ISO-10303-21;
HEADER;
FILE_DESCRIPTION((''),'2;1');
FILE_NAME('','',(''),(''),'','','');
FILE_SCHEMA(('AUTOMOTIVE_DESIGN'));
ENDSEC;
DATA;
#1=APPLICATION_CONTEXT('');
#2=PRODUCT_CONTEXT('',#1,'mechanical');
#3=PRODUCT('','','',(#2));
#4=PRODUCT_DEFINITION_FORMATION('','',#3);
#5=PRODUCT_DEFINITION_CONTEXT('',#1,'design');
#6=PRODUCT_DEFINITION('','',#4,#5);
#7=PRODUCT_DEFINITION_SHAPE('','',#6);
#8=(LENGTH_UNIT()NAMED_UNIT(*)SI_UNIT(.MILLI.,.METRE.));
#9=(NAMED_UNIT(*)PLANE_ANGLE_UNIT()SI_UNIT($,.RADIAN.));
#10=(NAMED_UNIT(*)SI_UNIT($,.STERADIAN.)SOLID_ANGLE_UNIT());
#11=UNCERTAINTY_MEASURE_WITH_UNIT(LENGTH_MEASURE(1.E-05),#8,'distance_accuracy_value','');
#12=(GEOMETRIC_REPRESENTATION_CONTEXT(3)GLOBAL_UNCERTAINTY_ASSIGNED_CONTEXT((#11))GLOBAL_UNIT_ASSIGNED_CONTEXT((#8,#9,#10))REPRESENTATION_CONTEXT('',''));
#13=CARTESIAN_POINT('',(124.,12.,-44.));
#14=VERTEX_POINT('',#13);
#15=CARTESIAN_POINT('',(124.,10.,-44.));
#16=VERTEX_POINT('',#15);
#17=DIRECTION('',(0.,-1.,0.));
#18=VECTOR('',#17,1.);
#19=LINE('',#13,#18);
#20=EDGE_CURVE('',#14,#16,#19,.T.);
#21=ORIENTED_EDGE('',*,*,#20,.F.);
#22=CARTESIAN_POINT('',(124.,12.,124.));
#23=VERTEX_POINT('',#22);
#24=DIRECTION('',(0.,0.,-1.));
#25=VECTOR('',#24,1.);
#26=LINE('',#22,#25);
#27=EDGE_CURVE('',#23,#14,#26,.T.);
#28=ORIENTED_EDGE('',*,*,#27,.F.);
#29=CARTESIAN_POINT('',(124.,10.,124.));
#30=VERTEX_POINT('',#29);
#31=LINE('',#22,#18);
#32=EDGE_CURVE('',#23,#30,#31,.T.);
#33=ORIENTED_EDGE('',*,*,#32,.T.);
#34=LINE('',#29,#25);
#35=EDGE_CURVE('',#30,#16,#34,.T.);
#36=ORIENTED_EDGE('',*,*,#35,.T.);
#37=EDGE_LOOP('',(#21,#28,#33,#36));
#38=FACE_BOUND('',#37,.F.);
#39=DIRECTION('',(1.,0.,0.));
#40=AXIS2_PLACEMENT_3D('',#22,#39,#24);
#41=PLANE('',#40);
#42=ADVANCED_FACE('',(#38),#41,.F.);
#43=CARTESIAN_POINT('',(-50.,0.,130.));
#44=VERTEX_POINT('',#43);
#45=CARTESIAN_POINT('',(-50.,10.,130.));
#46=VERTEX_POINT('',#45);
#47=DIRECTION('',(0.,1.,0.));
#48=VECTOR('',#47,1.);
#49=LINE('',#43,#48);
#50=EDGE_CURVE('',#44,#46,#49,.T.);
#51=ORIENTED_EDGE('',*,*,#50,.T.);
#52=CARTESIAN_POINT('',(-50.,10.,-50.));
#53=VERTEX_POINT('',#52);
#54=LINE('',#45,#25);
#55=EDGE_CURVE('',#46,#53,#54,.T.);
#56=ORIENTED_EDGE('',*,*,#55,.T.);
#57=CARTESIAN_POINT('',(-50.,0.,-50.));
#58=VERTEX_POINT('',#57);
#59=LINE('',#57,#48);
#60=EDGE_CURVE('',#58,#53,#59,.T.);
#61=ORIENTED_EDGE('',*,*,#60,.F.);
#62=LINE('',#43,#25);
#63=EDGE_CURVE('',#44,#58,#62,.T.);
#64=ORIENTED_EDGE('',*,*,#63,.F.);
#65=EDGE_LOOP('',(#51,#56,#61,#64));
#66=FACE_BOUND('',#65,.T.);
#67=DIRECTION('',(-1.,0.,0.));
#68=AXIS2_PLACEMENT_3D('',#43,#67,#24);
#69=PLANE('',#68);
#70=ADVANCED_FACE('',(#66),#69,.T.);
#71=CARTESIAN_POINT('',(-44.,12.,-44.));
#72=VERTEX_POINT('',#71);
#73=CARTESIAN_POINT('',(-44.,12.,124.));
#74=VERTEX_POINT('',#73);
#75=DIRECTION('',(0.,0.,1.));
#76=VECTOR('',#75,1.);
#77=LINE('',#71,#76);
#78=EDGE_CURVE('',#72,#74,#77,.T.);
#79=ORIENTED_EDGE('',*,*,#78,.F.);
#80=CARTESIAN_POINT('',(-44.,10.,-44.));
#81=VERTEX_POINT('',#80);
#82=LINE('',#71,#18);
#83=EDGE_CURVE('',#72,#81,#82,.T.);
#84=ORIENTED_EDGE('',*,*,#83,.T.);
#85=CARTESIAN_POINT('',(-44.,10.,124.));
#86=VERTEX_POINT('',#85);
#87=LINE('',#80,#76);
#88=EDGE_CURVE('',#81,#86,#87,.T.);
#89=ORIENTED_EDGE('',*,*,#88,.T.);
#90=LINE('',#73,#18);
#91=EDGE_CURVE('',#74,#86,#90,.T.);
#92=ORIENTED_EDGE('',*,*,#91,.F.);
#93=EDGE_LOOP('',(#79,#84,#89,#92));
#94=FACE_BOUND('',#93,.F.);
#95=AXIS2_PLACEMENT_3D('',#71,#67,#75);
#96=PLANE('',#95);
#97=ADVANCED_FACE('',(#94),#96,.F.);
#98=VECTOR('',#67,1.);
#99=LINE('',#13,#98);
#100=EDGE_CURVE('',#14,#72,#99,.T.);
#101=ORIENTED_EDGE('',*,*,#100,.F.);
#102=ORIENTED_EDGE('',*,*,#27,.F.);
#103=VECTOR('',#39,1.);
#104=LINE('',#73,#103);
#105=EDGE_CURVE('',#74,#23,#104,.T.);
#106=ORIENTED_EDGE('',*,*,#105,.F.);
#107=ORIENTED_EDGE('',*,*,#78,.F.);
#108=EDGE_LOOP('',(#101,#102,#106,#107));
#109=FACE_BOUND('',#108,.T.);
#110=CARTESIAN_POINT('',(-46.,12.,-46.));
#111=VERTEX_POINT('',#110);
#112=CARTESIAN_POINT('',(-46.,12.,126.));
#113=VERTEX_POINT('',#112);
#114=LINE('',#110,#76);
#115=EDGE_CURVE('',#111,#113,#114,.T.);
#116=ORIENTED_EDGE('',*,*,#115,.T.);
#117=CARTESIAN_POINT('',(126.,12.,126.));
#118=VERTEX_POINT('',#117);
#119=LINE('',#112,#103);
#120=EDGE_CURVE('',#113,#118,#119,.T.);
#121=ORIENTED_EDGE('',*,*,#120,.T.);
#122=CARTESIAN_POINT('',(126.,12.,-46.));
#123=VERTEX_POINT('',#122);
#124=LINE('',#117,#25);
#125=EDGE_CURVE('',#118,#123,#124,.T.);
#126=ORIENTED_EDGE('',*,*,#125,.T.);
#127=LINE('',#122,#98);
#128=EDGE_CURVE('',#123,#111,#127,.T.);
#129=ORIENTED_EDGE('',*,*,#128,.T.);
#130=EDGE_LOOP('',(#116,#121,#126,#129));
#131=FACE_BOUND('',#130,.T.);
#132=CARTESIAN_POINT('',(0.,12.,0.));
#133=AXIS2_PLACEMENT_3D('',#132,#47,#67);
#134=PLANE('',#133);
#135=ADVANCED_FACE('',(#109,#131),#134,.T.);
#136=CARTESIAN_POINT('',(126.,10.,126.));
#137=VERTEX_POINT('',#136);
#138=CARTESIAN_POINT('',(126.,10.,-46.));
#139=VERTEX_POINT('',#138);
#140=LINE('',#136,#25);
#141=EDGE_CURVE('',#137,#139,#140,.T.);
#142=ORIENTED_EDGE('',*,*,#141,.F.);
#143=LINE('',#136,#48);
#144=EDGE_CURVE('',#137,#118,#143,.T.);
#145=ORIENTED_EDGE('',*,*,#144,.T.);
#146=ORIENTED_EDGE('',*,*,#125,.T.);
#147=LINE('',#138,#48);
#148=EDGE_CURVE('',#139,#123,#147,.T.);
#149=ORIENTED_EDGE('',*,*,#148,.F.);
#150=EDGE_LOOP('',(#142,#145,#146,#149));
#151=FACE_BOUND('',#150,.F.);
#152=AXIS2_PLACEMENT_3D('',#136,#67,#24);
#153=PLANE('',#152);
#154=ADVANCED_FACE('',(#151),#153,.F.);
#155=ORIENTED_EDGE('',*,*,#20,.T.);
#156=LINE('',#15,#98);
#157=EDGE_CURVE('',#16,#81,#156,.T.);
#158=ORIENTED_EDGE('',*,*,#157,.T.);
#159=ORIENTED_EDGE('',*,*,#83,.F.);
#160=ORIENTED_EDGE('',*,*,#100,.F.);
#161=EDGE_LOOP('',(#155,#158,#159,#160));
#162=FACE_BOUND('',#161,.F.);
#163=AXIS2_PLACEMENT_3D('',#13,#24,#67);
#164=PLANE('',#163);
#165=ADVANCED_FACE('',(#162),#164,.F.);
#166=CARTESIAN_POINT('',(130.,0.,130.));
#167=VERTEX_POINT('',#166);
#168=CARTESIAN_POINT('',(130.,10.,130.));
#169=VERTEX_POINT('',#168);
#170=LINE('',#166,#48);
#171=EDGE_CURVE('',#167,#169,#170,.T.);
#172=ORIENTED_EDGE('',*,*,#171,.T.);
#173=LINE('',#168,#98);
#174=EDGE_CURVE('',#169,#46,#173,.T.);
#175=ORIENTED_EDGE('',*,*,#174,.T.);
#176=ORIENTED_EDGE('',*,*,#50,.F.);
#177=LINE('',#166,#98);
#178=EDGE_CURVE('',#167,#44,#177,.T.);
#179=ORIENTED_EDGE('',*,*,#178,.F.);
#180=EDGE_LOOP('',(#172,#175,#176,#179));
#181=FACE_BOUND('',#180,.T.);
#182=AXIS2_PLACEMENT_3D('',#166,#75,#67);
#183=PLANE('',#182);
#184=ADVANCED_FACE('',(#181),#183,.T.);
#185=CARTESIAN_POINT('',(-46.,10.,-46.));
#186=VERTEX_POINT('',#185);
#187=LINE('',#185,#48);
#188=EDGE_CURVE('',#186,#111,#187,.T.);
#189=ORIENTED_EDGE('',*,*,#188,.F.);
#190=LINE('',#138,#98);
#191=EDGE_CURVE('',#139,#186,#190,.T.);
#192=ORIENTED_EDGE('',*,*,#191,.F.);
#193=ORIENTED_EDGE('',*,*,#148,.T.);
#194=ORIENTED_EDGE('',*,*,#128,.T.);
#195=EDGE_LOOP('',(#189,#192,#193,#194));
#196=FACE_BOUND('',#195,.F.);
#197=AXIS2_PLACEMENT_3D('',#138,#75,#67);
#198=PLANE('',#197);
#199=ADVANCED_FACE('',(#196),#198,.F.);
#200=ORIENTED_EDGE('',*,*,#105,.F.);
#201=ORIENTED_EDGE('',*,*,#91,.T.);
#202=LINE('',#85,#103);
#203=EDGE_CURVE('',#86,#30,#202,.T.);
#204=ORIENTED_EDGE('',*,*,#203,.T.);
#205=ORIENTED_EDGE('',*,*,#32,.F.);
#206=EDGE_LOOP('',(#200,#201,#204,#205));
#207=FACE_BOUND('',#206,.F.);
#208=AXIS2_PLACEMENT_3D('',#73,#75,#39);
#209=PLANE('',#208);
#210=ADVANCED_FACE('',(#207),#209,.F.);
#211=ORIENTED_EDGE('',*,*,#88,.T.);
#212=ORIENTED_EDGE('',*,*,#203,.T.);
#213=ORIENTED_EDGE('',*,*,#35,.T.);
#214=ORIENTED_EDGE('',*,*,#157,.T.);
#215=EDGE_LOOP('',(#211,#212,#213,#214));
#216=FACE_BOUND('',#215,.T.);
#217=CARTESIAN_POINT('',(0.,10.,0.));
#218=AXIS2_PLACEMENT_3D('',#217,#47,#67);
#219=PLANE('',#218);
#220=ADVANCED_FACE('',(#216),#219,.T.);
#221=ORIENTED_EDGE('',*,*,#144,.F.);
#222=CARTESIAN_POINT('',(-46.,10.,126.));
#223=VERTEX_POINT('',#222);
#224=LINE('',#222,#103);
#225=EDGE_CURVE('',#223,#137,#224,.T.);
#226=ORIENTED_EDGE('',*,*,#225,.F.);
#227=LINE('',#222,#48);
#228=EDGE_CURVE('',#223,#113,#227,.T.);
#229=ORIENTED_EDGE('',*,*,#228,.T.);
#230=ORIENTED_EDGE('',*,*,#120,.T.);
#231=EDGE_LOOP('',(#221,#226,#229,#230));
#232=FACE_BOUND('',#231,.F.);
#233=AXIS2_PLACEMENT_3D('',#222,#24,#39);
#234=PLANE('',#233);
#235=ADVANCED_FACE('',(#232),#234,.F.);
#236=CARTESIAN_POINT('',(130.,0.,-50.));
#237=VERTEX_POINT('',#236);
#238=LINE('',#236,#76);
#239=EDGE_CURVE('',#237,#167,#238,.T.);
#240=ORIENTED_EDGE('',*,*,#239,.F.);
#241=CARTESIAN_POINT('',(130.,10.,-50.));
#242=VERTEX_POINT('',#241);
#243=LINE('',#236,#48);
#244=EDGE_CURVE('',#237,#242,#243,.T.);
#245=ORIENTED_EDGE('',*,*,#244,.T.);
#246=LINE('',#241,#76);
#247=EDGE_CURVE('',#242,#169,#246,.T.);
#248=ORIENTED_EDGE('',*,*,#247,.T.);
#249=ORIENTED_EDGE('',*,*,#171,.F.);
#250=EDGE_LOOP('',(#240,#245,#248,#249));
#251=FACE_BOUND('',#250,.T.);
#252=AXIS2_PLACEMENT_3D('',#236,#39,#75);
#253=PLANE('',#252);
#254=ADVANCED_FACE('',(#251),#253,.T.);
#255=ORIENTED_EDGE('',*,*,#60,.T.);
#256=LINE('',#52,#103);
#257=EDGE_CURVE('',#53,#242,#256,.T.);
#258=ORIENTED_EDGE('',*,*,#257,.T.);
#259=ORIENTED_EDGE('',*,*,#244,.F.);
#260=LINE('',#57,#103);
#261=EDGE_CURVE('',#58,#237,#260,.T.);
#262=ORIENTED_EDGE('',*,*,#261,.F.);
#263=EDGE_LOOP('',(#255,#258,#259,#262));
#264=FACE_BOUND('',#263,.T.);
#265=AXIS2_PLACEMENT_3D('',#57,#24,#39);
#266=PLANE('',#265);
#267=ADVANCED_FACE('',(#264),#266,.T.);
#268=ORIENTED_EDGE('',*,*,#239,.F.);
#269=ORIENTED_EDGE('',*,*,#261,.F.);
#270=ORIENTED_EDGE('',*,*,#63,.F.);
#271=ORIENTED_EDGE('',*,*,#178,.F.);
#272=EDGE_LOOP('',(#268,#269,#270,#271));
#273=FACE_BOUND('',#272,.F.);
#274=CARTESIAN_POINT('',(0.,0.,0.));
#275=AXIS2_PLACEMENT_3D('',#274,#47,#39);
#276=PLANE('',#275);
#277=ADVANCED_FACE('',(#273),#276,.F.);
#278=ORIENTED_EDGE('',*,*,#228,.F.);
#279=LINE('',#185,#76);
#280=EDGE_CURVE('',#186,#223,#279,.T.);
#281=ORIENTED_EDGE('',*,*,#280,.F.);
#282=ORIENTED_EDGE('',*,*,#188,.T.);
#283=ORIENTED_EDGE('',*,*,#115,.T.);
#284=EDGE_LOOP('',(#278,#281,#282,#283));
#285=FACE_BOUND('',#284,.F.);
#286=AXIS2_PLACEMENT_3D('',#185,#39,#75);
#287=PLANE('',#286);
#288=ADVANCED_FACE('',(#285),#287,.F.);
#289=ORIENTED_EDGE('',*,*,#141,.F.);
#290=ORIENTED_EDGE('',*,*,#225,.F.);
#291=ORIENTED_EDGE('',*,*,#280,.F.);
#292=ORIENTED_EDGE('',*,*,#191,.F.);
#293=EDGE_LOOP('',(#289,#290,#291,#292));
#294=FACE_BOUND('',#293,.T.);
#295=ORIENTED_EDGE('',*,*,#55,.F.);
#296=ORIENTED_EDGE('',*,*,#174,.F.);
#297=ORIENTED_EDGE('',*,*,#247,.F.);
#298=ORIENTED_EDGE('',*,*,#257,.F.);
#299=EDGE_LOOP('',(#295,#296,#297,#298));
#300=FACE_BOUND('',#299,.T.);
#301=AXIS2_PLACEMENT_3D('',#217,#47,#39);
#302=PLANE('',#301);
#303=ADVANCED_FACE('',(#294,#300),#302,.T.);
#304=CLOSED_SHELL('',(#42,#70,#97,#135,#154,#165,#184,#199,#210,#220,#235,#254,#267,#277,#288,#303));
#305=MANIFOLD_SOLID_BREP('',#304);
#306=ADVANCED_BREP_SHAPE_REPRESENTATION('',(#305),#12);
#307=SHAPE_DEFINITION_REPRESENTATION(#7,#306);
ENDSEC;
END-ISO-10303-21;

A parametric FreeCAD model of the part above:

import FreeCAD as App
import Part
import Sketcher

V = App.Vector
Q = App.Units.Quantity


def add_polygon(sketch, points):
    """Adds a closed chain of lines whose ends are joined by coincident constraints."""
    first, n = sketch.GeometryCount, len(points)
    for a, b in zip(points, points[1:] + points[:1]):
        sketch.addGeometry(Part.LineSegment(App.Vector(*a, 0), App.Vector(*b, 0)), False)
    for i in range(n):
        sketch.addConstraint(Sketcher.Constraint("Coincident", first + i, 2, first + (i + 1) % n, 1))

doc = App.newDocument("Part")
params = doc.addObject("Spreadsheet::Sheet", "Params")
for row, (alias, value) in enumerate([
    ("sketch1_width", "180 mm"),
    ("pad1_length", "10 mm"),
    ("sketch2_width", "172 mm"),
    ("pad2_length", "2 mm"),
    ("sketch3_width", "168 mm"),
    ("pocket1_length", "2 mm"),
], start=1):
    params.set(f"A{row}", alias)
    params.set(f"B{row}", "=" + value)
    params.setAlias(f"B{row}", alias)

body = doc.addObject("PartDesign::Body", "Body")

sketch1 = doc.addObject("Sketcher::SketchObject", "Sketch")
body.addObject(sketch1)
sketch1.AttachmentSupport = (doc.XZ_Plane, [""])
sketch1.MapMode = "FlatFace"
add_polygon(sketch1, [(130, -50), (-50, -50), (-50, 130), (130, 130)])
sketch1.addConstraint([
    Sketcher.Constraint("Horizontal", 0),
    Sketcher.Constraint("Vertical", 1),
    Sketcher.Constraint("Horizontal", 2),
    Sketcher.Constraint("Vertical", 3),
    Sketcher.Constraint("Equal", 2, 1),
    Sketcher.Constraint("DistanceX", 0, 2, 0, 1, Q("180 mm")),
    Sketcher.Constraint("DistanceX", 0, 2, -1, 1, Q("50 mm")),
    Sketcher.Constraint("DistanceY", 0, 2, -1, 1, Q("50 mm")),
])
sketch1.setExpression("Constraints[9]", "Params.sketch1_width")
pad1 = doc.addObject("PartDesign::Pad", "Pad")
body.addObject(pad1)
pad1.Profile = sketch1
pad1.setExpression("Length", "Params.pad1_length")
pad1.Reversed = True

sketch2 = doc.addObject("Sketcher::SketchObject", "Sketch001")
body.addObject(sketch2)
sketch2.AttachmentSupport = (doc.XZ_Plane, [""])
sketch2.MapMode = "FlatFace"
sketch2.AttachmentOffset = App.Placement(V(0, 0, -10), App.Rotation())
add_polygon(sketch2, [(-46, -46), (-46, 126), (126, 126), (126, -46)])
sketch2.addConstraint([
    Sketcher.Constraint("Vertical", 0),
    Sketcher.Constraint("Horizontal", 1),
    Sketcher.Constraint("Vertical", 2),
    Sketcher.Constraint("Horizontal", 3),
    Sketcher.Constraint("Equal", 3, 0),
    Sketcher.Constraint("DistanceX", 1, 1, 1, 2, Q("172 mm")),
    Sketcher.Constraint("DistanceX", 0, 2, -1, 1, Q("46 mm")),
    Sketcher.Constraint("DistanceY", -1, 1, 0, 2, Q("126 mm")),
])
sketch2.setExpression("Constraints[9]", "Params.sketch2_width")
pad2 = doc.addObject("PartDesign::Pad", "Pad001")
body.addObject(pad2)
pad2.Profile = sketch2
pad2.setExpression("Length", "Params.pad2_length")
pad2.Reversed = True

sketch3 = doc.addObject("Sketcher::SketchObject", "Sketch002")
body.addObject(sketch3)
sketch3.AttachmentSupport = (doc.XZ_Plane, [""])
sketch3.MapMode = "FlatFace"
sketch3.AttachmentOffset = App.Placement(V(0, 0, -12), App.Rotation())
add_polygon(sketch3, [(-44, -44), (-44, 124), (124, 124), (124, -44)])
sketch3.addConstraint([
    Sketcher.Constraint("Vertical", 0),
    Sketcher.Constraint("Horizontal", 1),
    Sketcher.Constraint("Vertical", 2),
    Sketcher.Constraint("Horizontal", 3),
    Sketcher.Constraint("Equal", 3, 0),
    Sketcher.Constraint("DistanceX", 1, 1, 1, 2, Q("168 mm")),
    Sketcher.Constraint("DistanceX", 0, 2, -1, 1, Q("44 mm")),
    Sketcher.Constraint("DistanceY", -1, 1, 0, 2, Q("124 mm")),
])
sketch3.setExpression("Constraints[9]", "Params.sketch3_width")
pocket1 = doc.addObject("PartDesign::Pocket", "Pocket")
body.addObject(pocket1)
pocket1.Profile = sketch3
pocket1.setExpression("Length", "Params.pocket1_length")
pocket1.Reversed = True

doc.recompute()
